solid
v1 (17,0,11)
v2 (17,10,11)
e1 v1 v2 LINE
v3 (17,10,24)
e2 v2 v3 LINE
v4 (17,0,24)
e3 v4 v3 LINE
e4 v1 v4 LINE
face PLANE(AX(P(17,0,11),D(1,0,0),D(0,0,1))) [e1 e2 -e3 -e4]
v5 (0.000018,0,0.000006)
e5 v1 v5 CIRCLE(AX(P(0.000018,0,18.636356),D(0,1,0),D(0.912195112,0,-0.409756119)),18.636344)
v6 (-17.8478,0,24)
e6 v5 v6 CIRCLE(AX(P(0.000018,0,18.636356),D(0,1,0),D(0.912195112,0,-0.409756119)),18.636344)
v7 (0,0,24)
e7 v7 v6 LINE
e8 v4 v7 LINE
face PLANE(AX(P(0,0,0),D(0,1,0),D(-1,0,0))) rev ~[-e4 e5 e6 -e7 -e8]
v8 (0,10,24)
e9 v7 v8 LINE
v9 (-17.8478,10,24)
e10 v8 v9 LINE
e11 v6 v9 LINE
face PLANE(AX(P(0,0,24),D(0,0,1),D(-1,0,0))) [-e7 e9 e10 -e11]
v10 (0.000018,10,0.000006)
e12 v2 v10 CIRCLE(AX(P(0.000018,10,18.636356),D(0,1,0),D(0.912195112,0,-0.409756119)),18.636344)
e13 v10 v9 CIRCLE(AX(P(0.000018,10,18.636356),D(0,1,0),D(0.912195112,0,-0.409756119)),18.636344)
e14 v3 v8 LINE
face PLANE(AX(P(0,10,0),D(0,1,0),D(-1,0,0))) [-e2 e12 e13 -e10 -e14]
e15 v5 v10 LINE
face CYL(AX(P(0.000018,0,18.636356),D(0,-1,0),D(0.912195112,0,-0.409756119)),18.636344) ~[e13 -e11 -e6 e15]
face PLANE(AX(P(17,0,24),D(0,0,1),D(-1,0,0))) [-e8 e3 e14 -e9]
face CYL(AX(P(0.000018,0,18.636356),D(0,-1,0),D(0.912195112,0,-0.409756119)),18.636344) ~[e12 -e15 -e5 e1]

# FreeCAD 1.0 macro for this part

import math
import FreeCAD as App
import Part
import Sketcher
from FreeCAD import Vector

doc = App.newDocument("Part")
params = doc.addObject("Spreadsheet::Sheet", "Params")
for row, (alias, value) in enumerate([
    ("sketch1_height", "13 mm"),
    ("pad1_length", "10 mm"),
], start=1):
    params.set(f"A{row}", alias)
    params.set(f"B{row}", "=" + value)
    params.setAlias(f"B{row}", alias)

body = doc.addObject("PartDesign::Body", "Body")

# Sketch on XZ plane
sketch1 = body.newObject("Sketcher::SketchObject", "Sketch")
sketch1.AttachmentSupport = (doc.getObject("XZ_Plane"), [""])
sketch1.MapMode = "FlatFace"
sketch1.addGeometry([
    Part.LineSegment(Vector(17, 24, 0), Vector(17, 11, 0)),
    Part.ArcOfCircle(Part.Circle(Vector(0, 19, 0), Vector(0, 0, 1), 19), math.radians(163), math.radians(336)),
    Part.LineSegment(Vector(-18, 24, 0), Vector(17, 24, 0)),
], False)
sketch1.addConstraint([
    Sketcher.Constraint("Coincident", 0, 2, 1, 2),
    Sketcher.Constraint("Coincident", 1, 1, 2, 1),
    Sketcher.Constraint("Coincident", 2, 2, 0, 1),
    Sketcher.Constraint("Vertical", 0),
    Sketcher.Constraint("Horizontal", 2),
    Sketcher.Constraint("PointOnObject", 1, 3, -2),
    Sketcher.Constraint("DistanceX", -1, 1, 0, 2, 17.0),
    Sketcher.Constraint("DistanceY", -1, 1, 1, 1, 24.0),
    Sketcher.Constraint("Radius", 1, 18.6364),
    Sketcher.Constraint("DistanceY", 0, 2, 0, 1, 13.0),
])
sketch1.setExpression("Constraints[9]", "Params.sketch1_height")
pad1 = body.newObject("PartDesign::Pad", "Pad")
pad1.Profile = sketch1
pad1.setExpression("Length", "Params.pad1_length")
pad1.Reversed = True

doc.recompute()
